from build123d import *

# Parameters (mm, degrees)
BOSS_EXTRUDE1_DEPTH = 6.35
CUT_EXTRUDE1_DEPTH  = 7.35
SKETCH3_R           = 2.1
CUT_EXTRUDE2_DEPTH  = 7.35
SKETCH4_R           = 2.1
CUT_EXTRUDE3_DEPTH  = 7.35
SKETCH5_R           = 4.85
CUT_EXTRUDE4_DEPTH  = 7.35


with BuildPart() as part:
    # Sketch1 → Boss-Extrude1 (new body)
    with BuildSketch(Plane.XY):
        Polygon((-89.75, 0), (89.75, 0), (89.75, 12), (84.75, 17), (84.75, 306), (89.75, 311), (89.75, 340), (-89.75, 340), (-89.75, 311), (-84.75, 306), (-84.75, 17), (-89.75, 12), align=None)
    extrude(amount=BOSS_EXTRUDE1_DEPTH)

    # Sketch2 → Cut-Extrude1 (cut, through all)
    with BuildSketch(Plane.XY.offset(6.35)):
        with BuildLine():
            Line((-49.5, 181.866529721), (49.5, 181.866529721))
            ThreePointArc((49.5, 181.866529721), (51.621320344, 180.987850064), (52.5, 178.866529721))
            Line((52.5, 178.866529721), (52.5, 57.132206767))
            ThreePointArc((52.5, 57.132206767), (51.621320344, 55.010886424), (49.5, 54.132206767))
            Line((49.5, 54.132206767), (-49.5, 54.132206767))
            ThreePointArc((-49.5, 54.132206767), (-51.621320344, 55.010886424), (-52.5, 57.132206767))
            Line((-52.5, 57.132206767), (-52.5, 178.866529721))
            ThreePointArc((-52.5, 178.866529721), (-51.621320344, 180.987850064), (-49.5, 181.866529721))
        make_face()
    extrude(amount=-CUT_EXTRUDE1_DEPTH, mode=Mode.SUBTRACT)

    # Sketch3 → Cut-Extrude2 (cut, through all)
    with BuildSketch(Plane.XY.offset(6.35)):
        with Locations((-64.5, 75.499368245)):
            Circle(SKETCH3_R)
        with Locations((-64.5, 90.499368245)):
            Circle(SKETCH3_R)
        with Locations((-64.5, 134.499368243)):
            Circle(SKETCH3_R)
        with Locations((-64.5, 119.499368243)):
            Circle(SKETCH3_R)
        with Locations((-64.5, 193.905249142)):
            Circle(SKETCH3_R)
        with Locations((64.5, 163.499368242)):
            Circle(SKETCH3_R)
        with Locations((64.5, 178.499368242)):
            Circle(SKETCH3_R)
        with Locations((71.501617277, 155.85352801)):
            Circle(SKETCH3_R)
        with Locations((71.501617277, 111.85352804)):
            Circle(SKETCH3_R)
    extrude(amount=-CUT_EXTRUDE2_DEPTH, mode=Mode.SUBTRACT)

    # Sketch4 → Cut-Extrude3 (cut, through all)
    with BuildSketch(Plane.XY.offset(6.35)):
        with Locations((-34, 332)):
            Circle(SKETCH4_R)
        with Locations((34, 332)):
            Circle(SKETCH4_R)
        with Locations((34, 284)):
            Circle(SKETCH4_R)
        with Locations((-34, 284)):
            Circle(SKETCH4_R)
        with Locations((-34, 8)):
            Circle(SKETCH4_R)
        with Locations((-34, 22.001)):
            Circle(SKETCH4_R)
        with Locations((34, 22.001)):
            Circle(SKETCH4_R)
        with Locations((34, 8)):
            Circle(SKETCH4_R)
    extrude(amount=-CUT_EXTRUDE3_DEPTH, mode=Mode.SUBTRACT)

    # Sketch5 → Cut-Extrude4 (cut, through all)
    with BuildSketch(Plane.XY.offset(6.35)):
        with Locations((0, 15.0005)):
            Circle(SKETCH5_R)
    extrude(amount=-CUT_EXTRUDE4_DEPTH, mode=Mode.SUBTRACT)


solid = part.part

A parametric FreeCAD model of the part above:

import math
import FreeCAD as App
import Part
import Sketcher
from FreeCAD import Vector
Q = App.Units.Quantity


def add_polygon(sketch, points):
    """Adds a closed chain of lines whose ends are joined by coincident constraints."""
    first, n = sketch.GeometryCount, len(points)
    for a, b in zip(points, points[1:] + points[:1]):
        sketch.addGeometry(Part.LineSegment(App.Vector(*a, 0), App.Vector(*b, 0)), False)
    for i in range(n):
        sketch.addConstraint(Sketcher.Constraint("Coincident", first + i, 2, first + (i + 1) % n, 1))

doc = App.newDocument("Part")
body = doc.addObject("PartDesign::Body", "Body")

sketch1 = body.newObject("Sketcher::SketchObject", "Sketch")
sketch1.AttachmentSupport = (doc.getObject("XY_Plane"), [""])
sketch1.MapMode = "FlatFace"
add_polygon(sketch1, [(-90, 0), (90, 0), (90, 12), (85, 17), (85, 306), (90, 311), (90, 340), (-90, 340), (-90, 311), (-85, 306), (-85, 17), (-90, 12)])
sketch1.addConstraint([
    Sketcher.Constraint("Horizontal", 0),
    Sketcher.Constraint("Vertical", 1),
    Sketcher.Constraint("Vertical", 3),
    Sketcher.Constraint("Vertical", 5),
    Sketcher.Constraint("Horizontal", 6),
    Sketcher.Constraint("Vertical", 7),
    Sketcher.Constraint("Vertical", 9),
    Sketcher.Constraint("Vertical", 11),
    Sketcher.Constraint("Symmetric", 0, 2, 11, 2, -1, 1),
    Sketcher.Constraint("Symmetric", 4, 2, 7, 2, -2),
    Sketcher.Constraint("Symmetric", 3, 2, 8, 2, -2),
    Sketcher.Constraint("Perpendicular", 2, 4),
    Sketcher.Constraint("Perpendicular", 4, 8),
    Sketcher.Constraint("Perpendicular", 8, 10),
    Sketcher.Constraint("Horizontal", 2, 2, 9, 2),
    Sketcher.Constraint("Vertical", 1, 2, 4, 2),
    Sketcher.Constraint("DistanceY", 1, 1, 1, 2, Q("12 mm")),
    Sketcher.Constraint("DistanceY", 3, 1, 3, 2, Q("289 mm")),
    Sketcher.Constraint("DistanceY", 5, 1, 5, 2, Q("29 mm")),
    Sketcher.Constraint("DistanceX", 0, 1, 0, 2, Q("179.5 mm")),
    Sketcher.Constraint("DistanceY", -1, 1, 2, 2, Q("17 mm")),
])
pad1 = body.newObject("PartDesign::Pad", "Pad")
pad1.Profile = sketch1
pad1.Length = 6.35

sketch2 = body.newObject("Sketcher::SketchObject", "Sketch001")
sketch2.AttachmentSupport = (doc.getObject("XY_Plane"), [""])
sketch2.MapMode = "FlatFace"
sketch2.AttachmentOffset = App.Placement(Vector(0, 0, 6.35), App.Rotation())
sketch2.addGeometry([
    Part.LineSegment(Vector(49.5, 181.9, 0), Vector(-49.5, 181.9, 0)),
    Part.ArcOfCircle(Part.Circle(Vector(-49.5, 178.9, 0), Vector(0, 0, 1), 3), math.radians(90), math.radians(180)),
    Part.LineSegment(Vector(-52.5, 178.9, 0), Vector(-52.5, 57.1, 0)),
    Part.ArcOfCircle(Part.Circle(Vector(-49.5, 57.1, 0), Vector(0, 0, 1), 3), math.radians(180), math.radians(270)),
    Part.LineSegment(Vector(-49.5, 54.1, 0), Vector(49.5, 54.1, 0)),
    Part.ArcOfCircle(Part.Circle(Vector(49.5, 57.1, 0), Vector(0, 0, 1), 3), math.radians(-90), math.radians(0)),
    Part.LineSegment(Vector(52.5, 57.1, 0), Vector(52.5, 178.9, 0)),
    Part.ArcOfCircle(Part.Circle(Vector(49.5, 178.9, 0), Vector(0, 0, 1), 3), math.radians(0), math.radians(90)),
], False)
sketch2.addConstraint([
    Sketcher.Constraint("Tangent", 0, 2, 1, 1),
    Sketcher.Constraint("Tangent", 1, 2, 2, 1),
    Sketcher.Constraint("Tangent", 2, 2, 3, 1),
    Sketcher.Constraint("Tangent", 3, 2, 4, 1),
    Sketcher.Constraint("Tangent", 4, 2, 5, 1),
    Sketcher.Constraint("Tangent", 5, 2, 6, 1),
    Sketcher.Constraint("Tangent", 6, 2, 7, 1),
    Sketcher.Constraint("Tangent", 7, 2, 0, 1),
    Sketcher.Constraint("Horizontal", 0),
    Sketcher.Constraint("Vertical", 2),
    Sketcher.Constraint("Horizontal", 4),
    Sketcher.Constraint("Vertical", 6),
    Sketcher.Constraint("Equal", 1, 3),
    Sketcher.Constraint("Equal", 3, 5),
    Sketcher.Constraint("Equal", 5, 7),
    Sketcher.Constraint("Radius", 1, Q("3 mm")),
    Sketcher.Constraint("DistanceX", 0, 2, 0, 1, Q("99 mm")),
    Sketcher.Constraint("DistanceX", 1, 3, -1, 1, Q("49.5 mm")),
    Sketcher.Constraint("DistanceY", 2, 2, 2, 1, Q("121.734323 mm")),
    Sketcher.Constraint("DistanceY", -1, 1, 1, 3, Q("178.86653 mm")),
])
pocket1 = body.newObject("PartDesign::Pocket", "Pocket")
pocket1.Profile = sketch2
pocket1.Type = "ThroughAll"

sketch3 = body.newObject("Sketcher::SketchObject", "Sketch002")
sketch3.AttachmentSupport = (doc.getObject("XY_Plane"), [""])
sketch3.MapMode = "FlatFace"
sketch3.AttachmentOffset = App.Placement(Vector(0, 0, 6.35), App.Rotation())
sketch3.addGeometry([
    Part.Circle(Vector(-64.5, 75.5, 0), Vector(0, 0, 1), 2.1),
    Part.Circle(Vector(-64.5, 90.5, 0), Vector(0, 0, 1), 2.1),
    Part.Circle(Vector(-64.5, 134.5, 0), Vector(0, 0, 1), 2.1),
    Part.Circle(Vector(-64.5, 119.5, 0), Vector(0, 0, 1), 2.1),
    Part.Circle(Vector(-64.5, 193.9, 0), Vector(0, 0, 1), 2.1),
    Part.Circle(Vector(64.5, 163.5, 0), Vector(0, 0, 1), 2.1),
    Part.Circle(Vector(64.5, 178.5, 0), Vector(0, 0, 1), 2.1),
    Part.Circle(Vector(71.5, 155.9, 0), Vector(0, 0, 1), 2.1),
    Part.Circle(Vector(71.5, 111.9, 0), Vector(0, 0, 1), 2.1),
], False)
sketch3.addConstraint([
    Sketcher.Constraint("Equal", 0, 1),
    Sketcher.Constraint("Equal", 1, 2),
    Sketcher.Constraint("Equal", 2, 3),
    Sketcher.Constraint("Equal", 3, 4),
    Sketcher.Constraint("Equal", 4, 5),
    Sketcher.Constraint("Equal", 5, 6),
    Sketcher.Constraint("Equal", 6, 7),
    Sketcher.Constraint("Equal", 7, 8),
    Sketcher.Constraint("Vertical", 0, 3, 1, 3),
    Sketcher.Constraint("Vertical", 1, 3, 2, 3),
    Sketcher.Constraint("Vertical", 2, 3, 3, 3),
    Sketcher.Constraint("Vertical", 3, 3, 4, 3),
    Sketcher.Constraint("Vertical", 5, 3, 6, 3),
    Sketcher.Constraint("Vertical", 7, 3, 8, 3),
    Sketcher.Constraint("Diameter", 0, Q("4.2 mm")),
    Sketcher.Constraint("DistanceY", 0, 3, 1, 3, Q("15 mm")),
    Sketcher.Constraint("DistanceY", 1, 3, 2, 3, Q("44 mm")),
    Sketcher.Constraint("DistanceY", 3, 3, 2, 3, Q("15 mm")),
    Sketcher.Constraint("DistanceX", 2, 3, 5, 3, Q("129 mm")),
    Sketcher.Constraint("DistanceY", 2, 3, 5, 3, Q("29 mm")),
    Sketcher.Constraint("DistanceY", 5, 3, 6, 3, Q("15 mm")),
    Sketcher.Constraint("DistanceY", 8, 3, 7, 3, Q("44 mm")),
    Sketcher.Constraint("DistanceX", 0, 3, -1, 1, Q("64.5 mm")),
    Sketcher.Constraint("DistanceY", -1, 1, 0, 3, Q("75.499368 mm")),
    Sketcher.Constraint("DistanceY", -1, 1, 4, 3, Q("193.905249 mm")),
    Sketcher.Constraint("DistanceY", -1, 1, 7, 3, Q("155.853528 mm")),
    Sketcher.Constraint("DistanceX", -1, 1, 7, 3, Q("71.501617 mm")),
])
pocket2 = body.newObject("PartDesign::Pocket", "Pocket001")
pocket2.Profile = sketch3
pocket2.Type = "ThroughAll"

sketch4 = body.newObject("Sketcher::SketchObject", "Sketch003")
sketch4.AttachmentSupport = (doc.getObject("XY_Plane"), [""])
sketch4.MapMode = "FlatFace"
sketch4.AttachmentOffset = App.Placement(Vector(0, 0, 6.35), App.Rotation())
sketch4.addGeometry([
    Part.Circle(Vector(-34, 332, 0), Vector(0, 0, 1), 2.1),
    Part.Circle(Vector(34, 332, 0), Vector(0, 0, 1), 2.1),
    Part.Circle(Vector(34, 284, 0), Vector(0, 0, 1), 2.1),
    Part.Circle(Vector(-34, 284, 0), Vector(0, 0, 1), 2.1),
    Part.Circle(Vector(-34, 8, 0), Vector(0, 0, 1), 2.1),
    Part.Circle(Vector(-34, 22, 0), Vector(0, 0, 1), 2.1),
    Part.Circle(Vector(34, 22, 0), Vector(0, 0, 1), 2.1),
    Part.Circle(Vector(34, 8, 0), Vector(0, 0, 1), 2.1),
], False)
sketch4.addConstraint([
    Sketcher.Constraint("Equal", 0, 1),
    Sketcher.Constraint("Equal", 1, 2),
    Sketcher.Constraint("Equal", 2, 3),
    Sketcher.Constraint("Equal", 3, 4),
    Sketcher.Constraint("Equal", 4, 5),
    Sketcher.Constraint("Equal", 5, 6),
    Sketcher.Constraint("Equal", 6, 7),
    Sketcher.Constraint("Symmetric", 0, 3, 1, 3, -2),
    Sketcher.Constraint("Symmetric", 2, 3, 3, 3, -2),
    Sketcher.Constraint("Symmetric", 5, 3, 6, 3, -2),
    Sketcher.Constraint("Symmetric", 4, 3, 7, 3, -2),
    Sketcher.Constraint("Vertical", 1, 3, 2, 3),
    Sketcher.Constraint("Vertical", 3, 3, 4, 3),
    Sketcher.Constraint("Vertical", 4, 3, 5, 3),
    Sketcher.Constraint("Diameter", 0, Q("4.2 mm")),
    Sketcher.Constraint("DistanceX", 0, 3, -1, 1, Q("34 mm")),
    Sketcher.Constraint("DistanceY", -1, 1, 0, 3, Q("332 mm")),
    Sketcher.Constraint("DistanceY", -1, 1, 2, 3, Q("284 mm")),
    Sketcher.Constraint("DistanceY", -1, 1, 4, 3, Q("8 mm")),
    Sketcher.Constraint("DistanceY", -1, 1, 5, 3, Q("22.001 mm")),
])
pocket3 = body.newObject("PartDesign::Pocket", "Pocket002")
pocket3.Profile = sketch4
pocket3.Type = "ThroughAll"

sketch5 = body.newObject("Sketcher::SketchObject", "Sketch004")
sketch5.AttachmentSupport = (doc.getObject("XY_Plane"), [""])
sketch5.MapMode = "FlatFace"
sketch5.AttachmentOffset = App.Placement(Vector(0, 0, 6.35), App.Rotation())
sketch5.addGeometry(Part.Circle(Vector(0, 15, 0), Vector(0, 0, 1), 4.8), False)
sketch5.addConstraint([
    Sketcher.Constraint("PointOnObject", 0, 3, -2),
    Sketcher.Constraint("Diameter", 0, Q("9.7 mm")),
    Sketcher.Constraint("DistanceY", -1, 1, 0, 3, Q("15.0005 mm")),
])
pocket4 = body.newObject("PartDesign::Pocket", "Pocket003")
pocket4.Profile = sketch5
pocket4.Type = "ThroughAll"

doc.recompute()
